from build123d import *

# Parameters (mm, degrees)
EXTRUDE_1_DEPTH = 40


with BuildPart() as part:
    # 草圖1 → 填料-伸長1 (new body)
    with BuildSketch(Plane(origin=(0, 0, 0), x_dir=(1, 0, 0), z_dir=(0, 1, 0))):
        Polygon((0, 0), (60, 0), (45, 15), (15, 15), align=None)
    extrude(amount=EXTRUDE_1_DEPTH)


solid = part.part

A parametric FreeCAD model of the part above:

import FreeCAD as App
import Part
import Sketcher
Q = App.Units.Quantity

doc = App.newDocument("Part")
body = doc.addObject("PartDesign::Body", "Body")

sketch1 = doc.addObject("Sketcher::SketchObject", "Sketch")
body.addObject(sketch1)
sketch1.AttachmentSupport = (doc.XZ_Plane, [""])
sketch1.MapMode = "FlatFace"
sketch1.addGeometry(Part.LineSegment(App.Vector(0, 0, 0), App.Vector(60, 0, 0)), False)
sketch1.addGeometry(Part.LineSegment(App.Vector(60, 0, 0), App.Vector(45, -15, 0)), False)
sketch1.addGeometry(Part.LineSegment(App.Vector(45, -15, 0), App.Vector(15, -15, 0)), False)
sketch1.addGeometry(Part.LineSegment(App.Vector(15, -15, 0), App.Vector(0, 0, 0)), False)
sketch1.addConstraint(Sketcher.Constraint("Coincident", 0, 2, 1, 1))
sketch1.addConstraint(Sketcher.Constraint("Coincident", 1, 2, 2, 1))
sketch1.addConstraint(Sketcher.Constraint("Coincident", 2, 2, 3, 1))
sketch1.addConstraint(Sketcher.Constraint("Coincident", 3, 2, 0, 1))
sketch1.addConstraint(Sketcher.Constraint("Horizontal", 0))
sketch1.addConstraint(Sketcher.Constraint("Horizontal", 2))
sketch1.addConstraint(Sketcher.Constraint("Coincident", 3, 2, -1, 1))
sketch1.addConstraint(Sketcher.Constraint("Perpendicular", 1, 3))
sketch1.addConstraint(Sketcher.Constraint("Equal", 1, 3))
sketch1.addConstraint(Sketcher.Constraint("DistanceX", 0, 1, 0, 2, Q("60 mm")))
sketch1.addConstraint(Sketcher.Constraint("DistanceX", 2, 2, 2, 1, Q("30 mm")))
pad1 = doc.addObject("PartDesign::Pad", "Pad")
body.addObject(pad1)
pad1.Profile = sketch1
pad1.Length = 40
pad1.Reversed = True

doc.recompute()
